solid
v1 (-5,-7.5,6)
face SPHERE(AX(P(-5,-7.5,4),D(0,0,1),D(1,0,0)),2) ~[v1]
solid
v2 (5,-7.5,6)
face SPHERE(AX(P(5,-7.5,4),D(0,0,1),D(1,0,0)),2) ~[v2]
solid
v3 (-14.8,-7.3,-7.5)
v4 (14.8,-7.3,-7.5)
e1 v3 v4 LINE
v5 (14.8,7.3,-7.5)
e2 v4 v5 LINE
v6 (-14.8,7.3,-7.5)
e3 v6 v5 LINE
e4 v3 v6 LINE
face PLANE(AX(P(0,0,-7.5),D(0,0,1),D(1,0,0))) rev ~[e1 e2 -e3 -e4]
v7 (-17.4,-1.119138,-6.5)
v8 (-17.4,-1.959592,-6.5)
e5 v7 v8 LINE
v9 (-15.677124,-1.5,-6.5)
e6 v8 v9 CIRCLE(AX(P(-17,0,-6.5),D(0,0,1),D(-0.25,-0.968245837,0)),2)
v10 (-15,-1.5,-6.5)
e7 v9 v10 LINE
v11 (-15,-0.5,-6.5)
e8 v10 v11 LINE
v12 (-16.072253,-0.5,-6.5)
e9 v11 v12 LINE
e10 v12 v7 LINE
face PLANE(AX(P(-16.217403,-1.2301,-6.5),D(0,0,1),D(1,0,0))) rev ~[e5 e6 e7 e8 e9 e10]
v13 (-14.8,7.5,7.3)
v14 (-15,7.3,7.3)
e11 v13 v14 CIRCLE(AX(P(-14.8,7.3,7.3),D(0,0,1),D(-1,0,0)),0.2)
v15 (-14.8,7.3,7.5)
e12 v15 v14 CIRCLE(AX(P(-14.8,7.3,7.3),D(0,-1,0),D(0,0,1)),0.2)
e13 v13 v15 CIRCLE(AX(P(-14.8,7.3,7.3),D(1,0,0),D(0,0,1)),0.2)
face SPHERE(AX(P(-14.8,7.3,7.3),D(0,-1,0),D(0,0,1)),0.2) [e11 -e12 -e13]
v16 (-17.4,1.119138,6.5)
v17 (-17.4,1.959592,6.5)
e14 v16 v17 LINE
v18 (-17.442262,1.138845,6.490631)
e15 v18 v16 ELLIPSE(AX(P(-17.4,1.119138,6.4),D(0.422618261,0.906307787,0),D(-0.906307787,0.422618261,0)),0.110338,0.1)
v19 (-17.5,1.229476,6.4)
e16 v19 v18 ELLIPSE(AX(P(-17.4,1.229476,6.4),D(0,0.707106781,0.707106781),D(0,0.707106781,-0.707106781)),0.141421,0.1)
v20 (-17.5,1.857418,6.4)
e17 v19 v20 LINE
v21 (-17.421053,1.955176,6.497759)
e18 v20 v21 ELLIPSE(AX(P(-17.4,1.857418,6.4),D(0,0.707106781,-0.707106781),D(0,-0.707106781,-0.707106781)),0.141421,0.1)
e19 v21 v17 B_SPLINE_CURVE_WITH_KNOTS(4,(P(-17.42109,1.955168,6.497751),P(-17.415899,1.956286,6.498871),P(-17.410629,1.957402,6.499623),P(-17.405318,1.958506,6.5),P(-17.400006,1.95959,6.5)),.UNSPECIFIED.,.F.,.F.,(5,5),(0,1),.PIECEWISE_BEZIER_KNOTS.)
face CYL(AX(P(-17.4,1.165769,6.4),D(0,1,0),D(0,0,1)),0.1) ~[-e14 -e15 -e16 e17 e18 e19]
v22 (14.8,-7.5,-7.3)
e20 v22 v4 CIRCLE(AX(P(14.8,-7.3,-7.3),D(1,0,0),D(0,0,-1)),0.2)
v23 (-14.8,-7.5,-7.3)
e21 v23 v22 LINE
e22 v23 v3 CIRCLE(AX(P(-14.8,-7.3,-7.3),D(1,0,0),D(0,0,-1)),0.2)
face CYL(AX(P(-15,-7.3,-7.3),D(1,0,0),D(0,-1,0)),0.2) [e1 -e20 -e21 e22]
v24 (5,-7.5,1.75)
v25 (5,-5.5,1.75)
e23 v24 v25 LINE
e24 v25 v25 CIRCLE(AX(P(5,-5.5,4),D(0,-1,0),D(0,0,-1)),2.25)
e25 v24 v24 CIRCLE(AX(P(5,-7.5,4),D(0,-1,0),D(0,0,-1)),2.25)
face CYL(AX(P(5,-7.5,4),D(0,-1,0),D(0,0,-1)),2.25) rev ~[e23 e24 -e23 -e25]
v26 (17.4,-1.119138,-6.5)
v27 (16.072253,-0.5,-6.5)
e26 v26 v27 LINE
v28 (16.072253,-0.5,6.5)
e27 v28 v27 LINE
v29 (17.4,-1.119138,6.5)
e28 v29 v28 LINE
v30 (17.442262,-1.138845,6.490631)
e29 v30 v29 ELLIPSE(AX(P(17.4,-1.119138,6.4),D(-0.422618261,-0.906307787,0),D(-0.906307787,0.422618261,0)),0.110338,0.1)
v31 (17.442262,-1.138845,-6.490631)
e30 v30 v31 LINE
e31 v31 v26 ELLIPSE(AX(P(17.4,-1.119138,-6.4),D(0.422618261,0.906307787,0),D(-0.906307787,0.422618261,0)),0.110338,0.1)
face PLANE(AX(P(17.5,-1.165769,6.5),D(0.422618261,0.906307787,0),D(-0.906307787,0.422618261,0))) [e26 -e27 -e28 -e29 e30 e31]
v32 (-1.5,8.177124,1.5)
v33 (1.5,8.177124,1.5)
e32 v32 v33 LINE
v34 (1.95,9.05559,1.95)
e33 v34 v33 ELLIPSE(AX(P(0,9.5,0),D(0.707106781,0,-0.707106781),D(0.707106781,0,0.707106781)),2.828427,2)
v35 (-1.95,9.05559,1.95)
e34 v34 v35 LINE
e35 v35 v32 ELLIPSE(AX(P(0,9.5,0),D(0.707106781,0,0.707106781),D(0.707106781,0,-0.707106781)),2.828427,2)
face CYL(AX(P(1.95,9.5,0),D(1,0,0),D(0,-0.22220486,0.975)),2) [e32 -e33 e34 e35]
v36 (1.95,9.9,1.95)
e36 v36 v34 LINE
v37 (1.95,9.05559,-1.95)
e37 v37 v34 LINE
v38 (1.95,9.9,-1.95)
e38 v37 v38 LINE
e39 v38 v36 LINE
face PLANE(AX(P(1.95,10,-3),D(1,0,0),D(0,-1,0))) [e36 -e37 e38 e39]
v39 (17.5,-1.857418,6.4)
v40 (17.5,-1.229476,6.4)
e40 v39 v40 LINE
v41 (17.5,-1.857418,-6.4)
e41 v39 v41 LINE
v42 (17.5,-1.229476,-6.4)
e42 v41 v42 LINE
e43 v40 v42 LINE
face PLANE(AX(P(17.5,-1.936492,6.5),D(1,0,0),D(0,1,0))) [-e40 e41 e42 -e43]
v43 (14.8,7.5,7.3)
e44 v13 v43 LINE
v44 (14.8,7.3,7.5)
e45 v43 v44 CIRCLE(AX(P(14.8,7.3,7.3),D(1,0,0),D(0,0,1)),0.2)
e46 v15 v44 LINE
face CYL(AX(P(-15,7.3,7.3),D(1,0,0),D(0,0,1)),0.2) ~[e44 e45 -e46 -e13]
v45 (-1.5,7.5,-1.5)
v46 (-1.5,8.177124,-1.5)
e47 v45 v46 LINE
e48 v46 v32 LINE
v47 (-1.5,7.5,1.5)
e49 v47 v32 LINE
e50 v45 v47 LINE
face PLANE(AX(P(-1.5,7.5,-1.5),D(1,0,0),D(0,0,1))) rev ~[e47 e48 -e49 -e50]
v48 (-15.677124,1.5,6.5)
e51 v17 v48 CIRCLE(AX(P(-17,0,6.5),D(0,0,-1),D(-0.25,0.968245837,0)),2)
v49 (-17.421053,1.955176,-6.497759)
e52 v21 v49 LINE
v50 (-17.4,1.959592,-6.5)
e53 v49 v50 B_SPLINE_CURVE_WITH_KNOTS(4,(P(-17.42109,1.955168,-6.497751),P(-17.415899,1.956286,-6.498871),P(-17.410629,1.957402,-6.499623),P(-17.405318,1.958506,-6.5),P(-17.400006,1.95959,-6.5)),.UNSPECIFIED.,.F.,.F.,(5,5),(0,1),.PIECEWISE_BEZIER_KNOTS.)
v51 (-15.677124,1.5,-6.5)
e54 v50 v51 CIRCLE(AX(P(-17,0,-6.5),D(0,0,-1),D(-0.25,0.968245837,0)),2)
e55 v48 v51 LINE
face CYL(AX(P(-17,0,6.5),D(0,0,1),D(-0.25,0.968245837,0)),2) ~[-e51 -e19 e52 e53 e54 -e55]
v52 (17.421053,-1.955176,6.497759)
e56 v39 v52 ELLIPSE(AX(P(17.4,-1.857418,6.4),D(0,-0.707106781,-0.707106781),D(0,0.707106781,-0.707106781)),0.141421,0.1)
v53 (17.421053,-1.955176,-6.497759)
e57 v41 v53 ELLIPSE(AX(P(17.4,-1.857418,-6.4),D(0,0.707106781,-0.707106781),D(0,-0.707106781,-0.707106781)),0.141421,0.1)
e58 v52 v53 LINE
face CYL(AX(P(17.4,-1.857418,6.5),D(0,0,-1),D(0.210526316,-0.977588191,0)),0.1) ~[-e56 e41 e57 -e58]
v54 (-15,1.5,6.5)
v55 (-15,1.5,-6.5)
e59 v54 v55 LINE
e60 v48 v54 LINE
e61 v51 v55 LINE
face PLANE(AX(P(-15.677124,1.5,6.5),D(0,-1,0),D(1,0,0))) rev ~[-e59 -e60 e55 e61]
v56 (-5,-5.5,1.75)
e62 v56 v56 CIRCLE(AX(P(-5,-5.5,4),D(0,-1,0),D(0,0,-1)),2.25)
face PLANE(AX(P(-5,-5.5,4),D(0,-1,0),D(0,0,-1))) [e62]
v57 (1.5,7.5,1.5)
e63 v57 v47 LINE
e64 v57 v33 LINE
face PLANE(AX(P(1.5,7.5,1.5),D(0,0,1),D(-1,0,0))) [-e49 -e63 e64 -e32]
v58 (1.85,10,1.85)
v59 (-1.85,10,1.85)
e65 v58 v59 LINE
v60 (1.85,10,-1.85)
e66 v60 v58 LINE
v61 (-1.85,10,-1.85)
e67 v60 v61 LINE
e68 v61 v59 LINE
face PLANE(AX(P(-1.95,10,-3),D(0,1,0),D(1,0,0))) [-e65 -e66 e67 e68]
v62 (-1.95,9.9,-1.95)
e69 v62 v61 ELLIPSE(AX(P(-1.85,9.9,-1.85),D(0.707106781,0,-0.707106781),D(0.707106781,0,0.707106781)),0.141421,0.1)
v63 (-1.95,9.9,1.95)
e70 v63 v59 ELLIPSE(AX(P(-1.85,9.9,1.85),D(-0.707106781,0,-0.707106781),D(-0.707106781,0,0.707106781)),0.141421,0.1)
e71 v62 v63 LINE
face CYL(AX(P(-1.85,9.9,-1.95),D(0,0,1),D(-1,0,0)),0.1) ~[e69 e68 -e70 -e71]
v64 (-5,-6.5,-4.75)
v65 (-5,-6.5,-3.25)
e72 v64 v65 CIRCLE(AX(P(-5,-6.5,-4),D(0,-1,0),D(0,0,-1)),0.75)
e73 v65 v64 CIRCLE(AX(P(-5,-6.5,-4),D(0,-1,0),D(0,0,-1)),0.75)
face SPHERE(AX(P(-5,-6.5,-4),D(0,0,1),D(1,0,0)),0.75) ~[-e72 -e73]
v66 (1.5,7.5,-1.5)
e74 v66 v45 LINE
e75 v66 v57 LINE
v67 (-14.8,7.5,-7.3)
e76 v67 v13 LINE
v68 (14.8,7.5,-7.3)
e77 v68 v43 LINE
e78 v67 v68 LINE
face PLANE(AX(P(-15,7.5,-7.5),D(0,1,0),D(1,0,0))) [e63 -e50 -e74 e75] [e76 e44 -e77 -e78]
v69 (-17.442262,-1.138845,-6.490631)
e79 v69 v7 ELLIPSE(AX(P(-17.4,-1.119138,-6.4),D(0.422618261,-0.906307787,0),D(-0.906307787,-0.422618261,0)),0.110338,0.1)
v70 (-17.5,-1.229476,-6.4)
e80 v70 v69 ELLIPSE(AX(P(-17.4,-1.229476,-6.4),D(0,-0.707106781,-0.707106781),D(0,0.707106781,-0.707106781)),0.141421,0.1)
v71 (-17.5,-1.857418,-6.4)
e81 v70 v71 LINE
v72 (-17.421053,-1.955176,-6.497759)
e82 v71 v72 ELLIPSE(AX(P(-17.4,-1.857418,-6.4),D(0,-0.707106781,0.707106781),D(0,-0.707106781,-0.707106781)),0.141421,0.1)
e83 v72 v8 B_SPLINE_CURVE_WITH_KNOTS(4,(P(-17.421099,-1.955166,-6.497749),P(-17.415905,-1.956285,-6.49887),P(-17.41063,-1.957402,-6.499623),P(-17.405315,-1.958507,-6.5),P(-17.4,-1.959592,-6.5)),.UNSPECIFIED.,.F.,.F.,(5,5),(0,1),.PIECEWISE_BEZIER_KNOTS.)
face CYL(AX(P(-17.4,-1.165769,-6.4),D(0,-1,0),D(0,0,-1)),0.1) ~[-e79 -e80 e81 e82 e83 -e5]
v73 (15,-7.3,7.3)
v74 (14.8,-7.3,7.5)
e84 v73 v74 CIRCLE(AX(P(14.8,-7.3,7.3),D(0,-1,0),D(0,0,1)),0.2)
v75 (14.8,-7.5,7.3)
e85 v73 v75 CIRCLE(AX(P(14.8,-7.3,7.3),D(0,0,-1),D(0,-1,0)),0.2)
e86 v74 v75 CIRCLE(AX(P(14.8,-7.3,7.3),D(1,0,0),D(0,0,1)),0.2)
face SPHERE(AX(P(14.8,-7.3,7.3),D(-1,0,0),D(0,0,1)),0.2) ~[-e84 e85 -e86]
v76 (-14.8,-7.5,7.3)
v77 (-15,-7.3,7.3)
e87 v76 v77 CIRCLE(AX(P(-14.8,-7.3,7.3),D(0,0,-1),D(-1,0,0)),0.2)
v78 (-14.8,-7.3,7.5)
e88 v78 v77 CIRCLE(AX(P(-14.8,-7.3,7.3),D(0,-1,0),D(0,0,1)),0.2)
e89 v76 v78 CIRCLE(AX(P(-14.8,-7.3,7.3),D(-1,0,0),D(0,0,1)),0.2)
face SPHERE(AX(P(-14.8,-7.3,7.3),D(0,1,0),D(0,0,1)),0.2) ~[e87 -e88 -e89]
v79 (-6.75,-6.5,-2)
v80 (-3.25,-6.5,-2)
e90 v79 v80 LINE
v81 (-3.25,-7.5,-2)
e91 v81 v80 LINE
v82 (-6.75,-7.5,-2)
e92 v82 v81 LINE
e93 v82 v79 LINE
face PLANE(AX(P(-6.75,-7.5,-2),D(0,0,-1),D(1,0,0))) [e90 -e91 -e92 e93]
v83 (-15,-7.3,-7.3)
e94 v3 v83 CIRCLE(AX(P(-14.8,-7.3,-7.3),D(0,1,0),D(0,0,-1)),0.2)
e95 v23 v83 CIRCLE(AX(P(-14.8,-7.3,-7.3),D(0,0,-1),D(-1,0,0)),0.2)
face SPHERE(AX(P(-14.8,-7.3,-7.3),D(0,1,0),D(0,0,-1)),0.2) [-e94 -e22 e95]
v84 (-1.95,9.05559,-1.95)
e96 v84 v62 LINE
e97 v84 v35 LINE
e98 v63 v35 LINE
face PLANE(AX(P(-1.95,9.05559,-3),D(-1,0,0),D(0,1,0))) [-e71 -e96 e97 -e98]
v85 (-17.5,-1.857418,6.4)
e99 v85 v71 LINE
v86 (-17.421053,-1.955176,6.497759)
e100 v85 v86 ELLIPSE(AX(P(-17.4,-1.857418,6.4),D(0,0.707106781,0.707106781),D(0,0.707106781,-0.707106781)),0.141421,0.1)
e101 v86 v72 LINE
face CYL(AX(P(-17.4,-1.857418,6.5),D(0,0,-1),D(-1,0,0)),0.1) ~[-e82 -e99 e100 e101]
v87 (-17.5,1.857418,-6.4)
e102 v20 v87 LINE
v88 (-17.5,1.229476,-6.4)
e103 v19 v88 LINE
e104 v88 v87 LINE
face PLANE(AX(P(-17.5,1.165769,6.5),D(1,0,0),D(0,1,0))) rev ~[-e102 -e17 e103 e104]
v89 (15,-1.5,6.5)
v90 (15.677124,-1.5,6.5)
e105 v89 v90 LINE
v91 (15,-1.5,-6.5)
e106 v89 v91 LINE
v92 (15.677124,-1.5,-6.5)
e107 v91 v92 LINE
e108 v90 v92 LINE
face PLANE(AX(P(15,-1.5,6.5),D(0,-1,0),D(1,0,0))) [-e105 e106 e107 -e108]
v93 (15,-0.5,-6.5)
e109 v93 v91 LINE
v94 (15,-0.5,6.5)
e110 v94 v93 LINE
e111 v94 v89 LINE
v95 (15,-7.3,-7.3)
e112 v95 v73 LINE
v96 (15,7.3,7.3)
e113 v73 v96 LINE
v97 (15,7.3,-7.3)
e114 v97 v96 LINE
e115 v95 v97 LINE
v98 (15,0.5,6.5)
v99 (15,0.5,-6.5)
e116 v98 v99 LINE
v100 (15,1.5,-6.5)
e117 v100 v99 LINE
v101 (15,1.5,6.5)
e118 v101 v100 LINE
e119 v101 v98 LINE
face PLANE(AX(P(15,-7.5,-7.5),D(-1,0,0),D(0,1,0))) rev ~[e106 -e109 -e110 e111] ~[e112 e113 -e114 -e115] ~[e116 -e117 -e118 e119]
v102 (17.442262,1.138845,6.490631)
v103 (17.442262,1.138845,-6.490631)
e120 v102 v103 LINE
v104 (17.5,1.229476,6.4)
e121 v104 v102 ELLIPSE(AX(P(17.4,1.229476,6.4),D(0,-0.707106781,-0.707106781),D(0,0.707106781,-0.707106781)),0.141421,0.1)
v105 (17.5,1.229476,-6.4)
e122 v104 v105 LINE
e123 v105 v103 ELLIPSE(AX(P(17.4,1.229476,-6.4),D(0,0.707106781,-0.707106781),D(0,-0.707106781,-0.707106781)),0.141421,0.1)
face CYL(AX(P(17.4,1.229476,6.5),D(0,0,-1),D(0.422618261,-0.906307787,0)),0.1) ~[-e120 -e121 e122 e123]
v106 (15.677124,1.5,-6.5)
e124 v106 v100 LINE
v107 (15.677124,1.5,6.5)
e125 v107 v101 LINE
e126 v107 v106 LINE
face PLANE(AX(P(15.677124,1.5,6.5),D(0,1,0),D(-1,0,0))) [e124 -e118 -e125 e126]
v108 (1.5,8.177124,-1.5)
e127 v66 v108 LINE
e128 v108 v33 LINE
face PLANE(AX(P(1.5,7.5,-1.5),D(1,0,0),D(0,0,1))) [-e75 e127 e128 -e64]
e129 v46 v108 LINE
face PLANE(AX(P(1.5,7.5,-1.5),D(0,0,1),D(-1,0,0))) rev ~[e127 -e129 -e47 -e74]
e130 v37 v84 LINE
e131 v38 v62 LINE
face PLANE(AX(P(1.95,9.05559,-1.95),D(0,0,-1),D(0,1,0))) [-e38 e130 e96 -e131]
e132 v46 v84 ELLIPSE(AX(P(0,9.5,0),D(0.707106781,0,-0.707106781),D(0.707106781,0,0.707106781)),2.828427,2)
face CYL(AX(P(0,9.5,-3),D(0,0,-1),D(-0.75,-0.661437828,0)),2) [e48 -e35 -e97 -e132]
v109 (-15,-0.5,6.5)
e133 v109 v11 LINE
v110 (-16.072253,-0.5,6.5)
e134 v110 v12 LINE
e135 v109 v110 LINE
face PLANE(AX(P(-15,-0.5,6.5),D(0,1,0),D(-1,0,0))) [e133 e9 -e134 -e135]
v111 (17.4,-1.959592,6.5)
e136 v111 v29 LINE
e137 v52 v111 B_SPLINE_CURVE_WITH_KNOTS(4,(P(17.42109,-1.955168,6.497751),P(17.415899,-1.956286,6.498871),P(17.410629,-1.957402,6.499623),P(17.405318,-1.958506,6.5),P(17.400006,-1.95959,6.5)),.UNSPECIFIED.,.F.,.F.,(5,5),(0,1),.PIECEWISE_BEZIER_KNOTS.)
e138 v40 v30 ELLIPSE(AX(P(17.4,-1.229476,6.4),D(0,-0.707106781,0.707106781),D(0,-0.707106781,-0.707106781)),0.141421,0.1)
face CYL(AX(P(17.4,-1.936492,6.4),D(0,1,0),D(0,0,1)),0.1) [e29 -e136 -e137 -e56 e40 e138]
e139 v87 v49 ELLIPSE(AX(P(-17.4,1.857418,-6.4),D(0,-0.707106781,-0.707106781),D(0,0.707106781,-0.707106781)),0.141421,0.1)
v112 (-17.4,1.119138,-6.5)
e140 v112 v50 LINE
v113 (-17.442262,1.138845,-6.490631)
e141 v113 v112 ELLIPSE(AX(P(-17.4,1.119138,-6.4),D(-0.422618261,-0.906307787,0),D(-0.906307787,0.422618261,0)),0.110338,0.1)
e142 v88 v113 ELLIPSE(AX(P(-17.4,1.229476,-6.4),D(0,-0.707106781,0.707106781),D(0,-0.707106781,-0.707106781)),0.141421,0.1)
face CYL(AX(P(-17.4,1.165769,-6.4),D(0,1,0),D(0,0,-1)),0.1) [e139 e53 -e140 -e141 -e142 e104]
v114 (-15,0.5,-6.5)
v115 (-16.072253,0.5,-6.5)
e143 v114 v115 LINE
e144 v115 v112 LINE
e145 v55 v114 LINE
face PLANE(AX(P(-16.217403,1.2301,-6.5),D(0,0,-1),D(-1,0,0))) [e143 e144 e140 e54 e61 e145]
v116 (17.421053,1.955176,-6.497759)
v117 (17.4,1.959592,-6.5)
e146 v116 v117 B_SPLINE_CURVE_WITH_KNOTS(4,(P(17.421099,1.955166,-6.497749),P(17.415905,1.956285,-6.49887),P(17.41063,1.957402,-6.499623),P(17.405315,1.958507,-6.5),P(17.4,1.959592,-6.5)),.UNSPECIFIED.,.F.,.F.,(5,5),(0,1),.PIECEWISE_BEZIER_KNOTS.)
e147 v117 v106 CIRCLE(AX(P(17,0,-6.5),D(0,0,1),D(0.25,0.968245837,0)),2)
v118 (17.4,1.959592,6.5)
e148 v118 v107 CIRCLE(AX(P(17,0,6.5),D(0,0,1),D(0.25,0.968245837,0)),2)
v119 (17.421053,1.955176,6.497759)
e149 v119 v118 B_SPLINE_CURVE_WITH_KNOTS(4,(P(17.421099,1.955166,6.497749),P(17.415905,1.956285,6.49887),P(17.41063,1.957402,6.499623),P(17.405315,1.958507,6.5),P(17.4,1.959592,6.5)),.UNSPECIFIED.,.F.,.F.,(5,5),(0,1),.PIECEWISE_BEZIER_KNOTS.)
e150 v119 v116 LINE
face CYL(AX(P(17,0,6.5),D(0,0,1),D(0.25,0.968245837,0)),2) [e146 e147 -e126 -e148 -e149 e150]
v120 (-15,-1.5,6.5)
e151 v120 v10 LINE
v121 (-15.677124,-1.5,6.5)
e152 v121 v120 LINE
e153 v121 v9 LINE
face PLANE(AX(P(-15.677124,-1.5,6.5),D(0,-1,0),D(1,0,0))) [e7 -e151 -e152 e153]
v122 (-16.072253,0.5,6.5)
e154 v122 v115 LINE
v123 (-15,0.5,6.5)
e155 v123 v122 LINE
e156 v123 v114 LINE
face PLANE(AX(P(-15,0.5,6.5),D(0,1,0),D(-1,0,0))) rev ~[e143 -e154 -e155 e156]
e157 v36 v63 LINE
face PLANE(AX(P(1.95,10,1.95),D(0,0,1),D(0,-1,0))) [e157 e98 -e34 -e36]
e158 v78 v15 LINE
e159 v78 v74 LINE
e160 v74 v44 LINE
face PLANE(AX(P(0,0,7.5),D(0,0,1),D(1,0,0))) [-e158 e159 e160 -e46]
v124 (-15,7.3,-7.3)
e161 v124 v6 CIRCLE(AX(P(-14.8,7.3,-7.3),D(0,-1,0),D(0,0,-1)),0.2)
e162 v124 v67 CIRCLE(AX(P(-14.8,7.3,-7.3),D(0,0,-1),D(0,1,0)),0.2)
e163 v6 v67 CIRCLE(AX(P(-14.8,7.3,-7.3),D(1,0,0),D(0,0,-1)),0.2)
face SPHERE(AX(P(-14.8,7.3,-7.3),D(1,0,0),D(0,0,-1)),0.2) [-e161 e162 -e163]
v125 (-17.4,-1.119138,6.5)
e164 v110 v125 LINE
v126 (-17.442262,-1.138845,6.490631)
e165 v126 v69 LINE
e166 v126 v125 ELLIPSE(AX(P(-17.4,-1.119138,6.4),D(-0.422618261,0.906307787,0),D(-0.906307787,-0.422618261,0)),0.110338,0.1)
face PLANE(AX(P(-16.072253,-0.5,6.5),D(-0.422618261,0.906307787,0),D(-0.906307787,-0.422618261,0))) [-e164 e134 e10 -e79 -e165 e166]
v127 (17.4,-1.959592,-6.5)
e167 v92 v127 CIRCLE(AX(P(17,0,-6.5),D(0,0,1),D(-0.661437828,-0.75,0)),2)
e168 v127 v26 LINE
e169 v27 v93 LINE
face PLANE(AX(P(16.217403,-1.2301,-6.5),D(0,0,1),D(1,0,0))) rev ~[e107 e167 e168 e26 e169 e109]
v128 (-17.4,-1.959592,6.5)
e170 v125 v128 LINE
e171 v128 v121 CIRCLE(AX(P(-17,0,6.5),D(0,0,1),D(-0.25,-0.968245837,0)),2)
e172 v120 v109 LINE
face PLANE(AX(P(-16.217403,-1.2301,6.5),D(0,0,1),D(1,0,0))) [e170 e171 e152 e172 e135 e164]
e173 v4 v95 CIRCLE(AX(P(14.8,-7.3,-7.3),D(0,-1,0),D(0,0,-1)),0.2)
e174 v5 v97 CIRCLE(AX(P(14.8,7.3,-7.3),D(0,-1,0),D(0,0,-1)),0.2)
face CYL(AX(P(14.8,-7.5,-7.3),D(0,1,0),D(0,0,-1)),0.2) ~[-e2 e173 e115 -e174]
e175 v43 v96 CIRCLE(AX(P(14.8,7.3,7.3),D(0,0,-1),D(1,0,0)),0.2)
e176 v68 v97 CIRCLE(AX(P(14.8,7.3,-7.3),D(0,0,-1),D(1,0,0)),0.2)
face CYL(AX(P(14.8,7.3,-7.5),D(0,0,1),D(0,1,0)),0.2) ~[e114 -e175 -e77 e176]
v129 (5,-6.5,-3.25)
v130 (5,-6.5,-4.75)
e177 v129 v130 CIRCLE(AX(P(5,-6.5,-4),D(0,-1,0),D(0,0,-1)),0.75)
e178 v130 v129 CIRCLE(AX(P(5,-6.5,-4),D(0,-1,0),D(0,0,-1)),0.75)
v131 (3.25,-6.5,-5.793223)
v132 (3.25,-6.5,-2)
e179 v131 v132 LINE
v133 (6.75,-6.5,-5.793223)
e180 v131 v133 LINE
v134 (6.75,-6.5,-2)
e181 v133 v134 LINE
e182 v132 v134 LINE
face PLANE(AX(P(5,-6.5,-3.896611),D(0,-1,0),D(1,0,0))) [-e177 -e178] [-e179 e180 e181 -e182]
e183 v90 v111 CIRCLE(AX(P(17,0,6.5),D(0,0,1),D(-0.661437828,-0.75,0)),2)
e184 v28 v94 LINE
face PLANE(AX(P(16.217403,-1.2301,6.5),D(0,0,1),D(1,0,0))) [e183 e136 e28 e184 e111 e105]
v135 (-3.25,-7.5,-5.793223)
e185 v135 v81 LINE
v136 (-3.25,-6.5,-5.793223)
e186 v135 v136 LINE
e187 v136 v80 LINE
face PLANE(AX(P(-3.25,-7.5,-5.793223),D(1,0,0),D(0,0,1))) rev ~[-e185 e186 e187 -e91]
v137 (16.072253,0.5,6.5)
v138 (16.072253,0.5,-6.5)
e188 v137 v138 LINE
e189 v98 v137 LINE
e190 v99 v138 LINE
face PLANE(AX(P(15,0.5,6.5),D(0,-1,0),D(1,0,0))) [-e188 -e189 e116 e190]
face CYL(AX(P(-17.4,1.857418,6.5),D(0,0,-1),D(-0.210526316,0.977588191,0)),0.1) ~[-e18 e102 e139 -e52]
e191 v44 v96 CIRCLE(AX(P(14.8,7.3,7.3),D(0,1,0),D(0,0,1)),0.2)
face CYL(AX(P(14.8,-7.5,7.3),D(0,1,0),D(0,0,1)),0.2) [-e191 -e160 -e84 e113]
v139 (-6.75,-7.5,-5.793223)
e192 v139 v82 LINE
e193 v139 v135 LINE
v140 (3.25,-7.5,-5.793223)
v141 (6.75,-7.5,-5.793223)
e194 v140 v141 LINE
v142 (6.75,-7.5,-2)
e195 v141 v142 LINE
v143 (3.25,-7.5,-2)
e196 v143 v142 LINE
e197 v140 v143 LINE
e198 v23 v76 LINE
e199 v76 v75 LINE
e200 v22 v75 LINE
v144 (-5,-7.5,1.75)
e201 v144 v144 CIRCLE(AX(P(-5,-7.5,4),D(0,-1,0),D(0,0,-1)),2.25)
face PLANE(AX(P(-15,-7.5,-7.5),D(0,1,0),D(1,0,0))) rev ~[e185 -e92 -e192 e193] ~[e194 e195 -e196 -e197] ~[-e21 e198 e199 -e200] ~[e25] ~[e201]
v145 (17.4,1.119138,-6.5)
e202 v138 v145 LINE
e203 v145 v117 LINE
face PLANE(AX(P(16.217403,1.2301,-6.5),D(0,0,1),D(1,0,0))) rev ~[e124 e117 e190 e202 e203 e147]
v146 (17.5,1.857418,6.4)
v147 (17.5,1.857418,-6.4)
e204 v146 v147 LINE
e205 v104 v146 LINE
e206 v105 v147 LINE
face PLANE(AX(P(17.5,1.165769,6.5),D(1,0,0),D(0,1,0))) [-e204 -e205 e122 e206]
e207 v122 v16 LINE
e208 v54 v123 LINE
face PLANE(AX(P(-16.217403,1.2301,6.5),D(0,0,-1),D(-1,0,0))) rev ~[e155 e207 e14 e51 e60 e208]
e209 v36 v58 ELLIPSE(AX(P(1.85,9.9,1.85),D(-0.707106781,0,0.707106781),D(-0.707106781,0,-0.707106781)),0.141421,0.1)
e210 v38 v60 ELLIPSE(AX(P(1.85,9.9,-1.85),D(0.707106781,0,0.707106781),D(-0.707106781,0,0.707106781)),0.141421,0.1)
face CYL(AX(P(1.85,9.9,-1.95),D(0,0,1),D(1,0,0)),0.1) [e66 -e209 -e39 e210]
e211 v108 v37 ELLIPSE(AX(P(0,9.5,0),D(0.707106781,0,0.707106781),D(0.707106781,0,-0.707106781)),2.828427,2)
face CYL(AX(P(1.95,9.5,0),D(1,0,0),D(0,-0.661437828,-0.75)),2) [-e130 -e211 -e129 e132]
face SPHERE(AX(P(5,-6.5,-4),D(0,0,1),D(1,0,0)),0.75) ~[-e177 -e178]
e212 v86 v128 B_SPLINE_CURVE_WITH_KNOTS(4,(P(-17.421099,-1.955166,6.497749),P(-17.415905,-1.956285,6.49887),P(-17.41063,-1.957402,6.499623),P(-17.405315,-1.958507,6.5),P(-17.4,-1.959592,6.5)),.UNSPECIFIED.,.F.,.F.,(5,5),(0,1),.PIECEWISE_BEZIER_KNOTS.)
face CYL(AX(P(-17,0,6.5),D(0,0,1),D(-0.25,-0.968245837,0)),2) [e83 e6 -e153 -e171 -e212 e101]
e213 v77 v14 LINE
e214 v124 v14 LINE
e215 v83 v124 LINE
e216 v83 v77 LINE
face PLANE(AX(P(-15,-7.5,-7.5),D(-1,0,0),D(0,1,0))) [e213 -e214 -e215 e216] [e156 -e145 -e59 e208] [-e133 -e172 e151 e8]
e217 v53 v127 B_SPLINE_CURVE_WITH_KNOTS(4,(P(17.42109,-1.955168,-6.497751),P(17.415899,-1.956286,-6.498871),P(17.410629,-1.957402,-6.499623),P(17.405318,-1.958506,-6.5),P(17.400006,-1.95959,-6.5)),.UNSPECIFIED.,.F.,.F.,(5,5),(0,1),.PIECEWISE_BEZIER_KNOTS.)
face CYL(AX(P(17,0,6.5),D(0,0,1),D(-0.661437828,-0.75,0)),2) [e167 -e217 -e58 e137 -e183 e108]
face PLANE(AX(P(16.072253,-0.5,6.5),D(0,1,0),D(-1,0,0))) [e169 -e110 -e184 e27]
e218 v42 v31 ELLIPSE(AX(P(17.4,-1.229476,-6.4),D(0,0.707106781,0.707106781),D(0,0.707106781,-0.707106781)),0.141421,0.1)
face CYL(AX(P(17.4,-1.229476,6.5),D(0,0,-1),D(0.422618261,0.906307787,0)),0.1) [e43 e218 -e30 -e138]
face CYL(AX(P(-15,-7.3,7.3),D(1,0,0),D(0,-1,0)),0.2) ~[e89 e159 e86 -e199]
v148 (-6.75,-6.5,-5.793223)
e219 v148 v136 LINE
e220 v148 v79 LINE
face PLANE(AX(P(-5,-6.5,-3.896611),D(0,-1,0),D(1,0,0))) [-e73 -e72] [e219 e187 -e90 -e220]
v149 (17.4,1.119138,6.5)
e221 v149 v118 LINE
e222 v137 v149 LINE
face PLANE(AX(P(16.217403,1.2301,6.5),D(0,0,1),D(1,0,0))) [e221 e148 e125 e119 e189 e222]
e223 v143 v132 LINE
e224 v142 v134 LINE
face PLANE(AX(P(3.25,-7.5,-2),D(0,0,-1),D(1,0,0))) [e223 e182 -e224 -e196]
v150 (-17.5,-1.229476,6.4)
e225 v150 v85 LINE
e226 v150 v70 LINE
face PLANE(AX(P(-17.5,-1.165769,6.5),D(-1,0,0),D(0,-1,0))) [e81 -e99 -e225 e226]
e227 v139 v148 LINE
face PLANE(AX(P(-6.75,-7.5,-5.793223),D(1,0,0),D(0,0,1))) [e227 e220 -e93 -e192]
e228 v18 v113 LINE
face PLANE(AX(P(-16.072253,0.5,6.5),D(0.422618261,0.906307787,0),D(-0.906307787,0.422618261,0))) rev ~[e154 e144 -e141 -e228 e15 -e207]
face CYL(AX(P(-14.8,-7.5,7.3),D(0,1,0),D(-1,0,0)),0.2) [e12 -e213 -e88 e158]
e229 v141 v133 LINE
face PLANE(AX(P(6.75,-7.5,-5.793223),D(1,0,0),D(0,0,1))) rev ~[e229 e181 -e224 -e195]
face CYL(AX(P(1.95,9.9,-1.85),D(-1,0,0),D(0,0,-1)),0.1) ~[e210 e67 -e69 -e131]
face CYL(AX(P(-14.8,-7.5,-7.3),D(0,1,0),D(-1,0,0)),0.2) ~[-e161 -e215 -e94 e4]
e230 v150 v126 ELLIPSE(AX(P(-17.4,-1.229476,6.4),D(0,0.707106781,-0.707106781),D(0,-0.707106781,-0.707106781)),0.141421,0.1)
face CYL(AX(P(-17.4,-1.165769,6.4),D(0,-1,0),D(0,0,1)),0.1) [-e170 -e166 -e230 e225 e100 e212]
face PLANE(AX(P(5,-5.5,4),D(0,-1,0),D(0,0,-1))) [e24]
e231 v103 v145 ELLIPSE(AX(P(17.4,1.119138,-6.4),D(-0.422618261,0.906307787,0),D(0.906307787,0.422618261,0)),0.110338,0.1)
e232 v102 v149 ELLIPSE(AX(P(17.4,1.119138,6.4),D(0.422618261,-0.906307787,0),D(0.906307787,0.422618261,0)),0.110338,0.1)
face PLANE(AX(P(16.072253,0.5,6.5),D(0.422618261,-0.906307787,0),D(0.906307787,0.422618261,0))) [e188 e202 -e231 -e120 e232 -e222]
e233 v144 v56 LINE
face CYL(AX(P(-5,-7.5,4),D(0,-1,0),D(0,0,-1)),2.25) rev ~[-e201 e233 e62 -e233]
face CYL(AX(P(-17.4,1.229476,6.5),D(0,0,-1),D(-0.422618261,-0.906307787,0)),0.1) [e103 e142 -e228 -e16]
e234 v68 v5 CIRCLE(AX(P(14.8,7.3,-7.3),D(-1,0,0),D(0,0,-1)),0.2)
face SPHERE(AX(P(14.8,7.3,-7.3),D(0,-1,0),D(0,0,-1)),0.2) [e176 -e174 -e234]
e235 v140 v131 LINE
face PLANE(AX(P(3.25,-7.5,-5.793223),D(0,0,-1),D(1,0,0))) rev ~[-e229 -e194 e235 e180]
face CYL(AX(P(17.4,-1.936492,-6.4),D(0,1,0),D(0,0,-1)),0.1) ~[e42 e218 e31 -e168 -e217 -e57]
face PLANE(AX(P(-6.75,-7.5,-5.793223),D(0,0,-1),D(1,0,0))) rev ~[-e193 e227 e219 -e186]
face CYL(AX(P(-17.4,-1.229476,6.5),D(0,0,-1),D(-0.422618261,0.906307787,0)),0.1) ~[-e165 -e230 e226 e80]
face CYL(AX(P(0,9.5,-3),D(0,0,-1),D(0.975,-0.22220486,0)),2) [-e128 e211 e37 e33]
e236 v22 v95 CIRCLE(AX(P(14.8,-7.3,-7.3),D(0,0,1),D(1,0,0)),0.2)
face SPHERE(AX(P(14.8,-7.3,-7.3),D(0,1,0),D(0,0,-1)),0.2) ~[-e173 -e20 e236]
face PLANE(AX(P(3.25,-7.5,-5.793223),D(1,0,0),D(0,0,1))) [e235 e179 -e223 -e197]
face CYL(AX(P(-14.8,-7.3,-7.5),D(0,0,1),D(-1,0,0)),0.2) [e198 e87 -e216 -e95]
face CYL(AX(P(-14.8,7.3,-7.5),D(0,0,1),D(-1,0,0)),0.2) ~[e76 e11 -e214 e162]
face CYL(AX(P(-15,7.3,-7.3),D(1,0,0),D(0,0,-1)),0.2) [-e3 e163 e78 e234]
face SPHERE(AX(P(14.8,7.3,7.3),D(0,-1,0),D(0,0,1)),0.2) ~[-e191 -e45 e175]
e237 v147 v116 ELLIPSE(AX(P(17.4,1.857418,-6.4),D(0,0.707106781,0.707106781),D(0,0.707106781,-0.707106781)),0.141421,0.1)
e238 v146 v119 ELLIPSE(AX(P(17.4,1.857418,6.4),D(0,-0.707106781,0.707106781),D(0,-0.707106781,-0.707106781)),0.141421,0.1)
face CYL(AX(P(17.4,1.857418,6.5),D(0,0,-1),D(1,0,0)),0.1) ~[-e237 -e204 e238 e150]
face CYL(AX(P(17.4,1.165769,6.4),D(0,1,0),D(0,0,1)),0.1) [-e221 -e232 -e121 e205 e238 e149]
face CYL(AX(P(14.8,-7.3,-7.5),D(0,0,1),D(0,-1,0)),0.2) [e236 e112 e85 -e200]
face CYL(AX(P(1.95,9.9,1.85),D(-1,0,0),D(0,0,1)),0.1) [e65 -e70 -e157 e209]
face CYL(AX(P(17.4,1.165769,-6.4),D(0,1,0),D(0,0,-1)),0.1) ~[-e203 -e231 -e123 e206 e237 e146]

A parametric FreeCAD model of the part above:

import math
import FreeCAD as App
import Part
import Sketcher
from FreeCAD import Vector
Q = App.Units.Quantity


def edges_at(feature, points):
    """Names of the edges that pass closest to the given points."""
    edges = feature.Shape.Edges
    near = lambda p: min(range(len(edges)), key=lambda i: edges[i].distToShape(Part.Vertex(*p))[0])
    return sorted({f"Edge{near(p) + 1}" for p in points})


def add_polygon(sketch, points):
    """Adds a closed chain of lines whose ends are joined by coincident constraints."""
    first, n = sketch.GeometryCount, len(points)
    for a, b in zip(points, points[1:] + points[:1]):
        sketch.addGeometry(Part.LineSegment(App.Vector(*a, 0), App.Vector(*b, 0)), False)
    for i in range(n):
        sketch.addConstraint(Sketcher.Constraint("Coincident", first + i, 2, first + (i + 1) % n, 1))

doc = App.newDocument("Part")
body = doc.addObject("PartDesign::Body", "Body")

# Sketch on XY plane
sketch1 = body.newObject("Sketcher::SketchObject", "Sketch")
sketch1.AttachmentSupport = (doc.getObject("XY_Plane"), [""])
sketch1.MapMode = "FlatFace"
add_polygon(sketch1, [(-15, 8), (-15, -8), (15, -8), (15, 8)])  # lines 0-3
sketch1.addConstraint([
    Sketcher.Constraint("Vertical", 0),
    Sketcher.Constraint("Horizontal", 1),
    Sketcher.Constraint("Vertical", 2),
    Sketcher.Constraint("Horizontal", 3),
    Sketcher.Constraint("Symmetric", 0, 2, 2, 2, -1, 1),
    Sketcher.Constraint("DistanceX", 1, 1, 1, 2, 30.0),
    Sketcher.Constraint("DistanceY", 0, 2, 0, 1, 15.0),
])
pad1 = body.newObject("PartDesign::Pad", "Pad")
pad1.Profile = sketch1
pad1.Type = "TwoLengths"
pad1.Length = 7.5
pad1.Length2 = 7.5

# Sketch on XY plane
sketch2 = body.newObject("Sketcher::SketchObject", "Sketch001")
sketch2.AttachmentSupport = (doc.getObject("XY_Plane"), [""])
sketch2.MapMode = "FlatFace"
sketch2.AttachmentOffset = App.Placement(Vector(0, 0, 6.5), App.Rotation())
sketch2.addGeometry([
    Part.LineSegment(Vector(-15, 1.5, 0), Vector(-15.7, 1.5, 0)),  # 0
    Part.ArcOfCircle(Part.Circle(Vector(-17, 0, 0), Vector(0, 0, 1), 2), math.radians(49), math.radians(104)),  # 1
    Part.LineSegment(Vector(-17.5, 1.9, 0), Vector(-17.5, 1.2, 0)),  # 2
    Part.LineSegment(Vector(-17.5, 1.2, 0), Vector(-16.1, 0.5, 0)),  # 3
    Part.LineSegment(Vector(-16.1, 0.5, 0), Vector(-15, 0.5, 0)),  # 4
    Part.LineSegment(Vector(-15, 0.5, 0), Vector(-15, 1.5, 0)),  # 5
    Part.LineSegment(Vector(-15.7, -1.5, 0), Vector(-15, -1.5, 0)),  # 6
    Part.LineSegment(Vector(-15, -1.5, 0), Vector(-15, -0.5, 0)),  # 7
    Part.LineSegment(Vector(-15, -0.5, 0), Vector(-16.1, -0.5, 0)),  # 8
    Part.LineSegment(Vector(-16.1, -0.5, 0), Vector(-17.5, -1.2, 0)),  # 9
    Part.LineSegment(Vector(-17.5, -1.2, 0), Vector(-17.5, -1.9, 0)),  # 10
    Part.ArcOfCircle(Part.Circle(Vector(-17, 0, 0), Vector(0, 0, 1), 2), math.radians(-104), math.radians(-49)),  # 11
    Part.LineSegment(Vector(15, -0.5, 0), Vector(15, -1.5, 0)),  # 12
    Part.LineSegment(Vector(15, -1.5, 0), Vector(15.7, -1.5, 0)),  # 13
    Part.ArcOfCircle(Part.Circle(Vector(17, 0, 0), Vector(0, 0, 1), 2), math.radians(-131), math.radians(-76)),  # 14
    Part.LineSegment(Vector(17.5, -1.9, 0), Vector(17.5, -1.2, 0)),  # 15
    Part.LineSegment(Vector(17.5, -1.2, 0), Vector(16.1, -0.5, 0)),  # 16
    Part.LineSegment(Vector(16.1, -0.5, 0), Vector(15, -0.5, 0)),  # 17
    Part.LineSegment(Vector(15, 0.5, 0), Vector(16.1, 0.5, 0)),  # 18
    Part.LineSegment(Vector(16.1, 0.5, 0), Vector(17.5, 1.2, 0)),  # 19
    Part.LineSegment(Vector(17.5, 1.2, 0), Vector(17.5, 1.9, 0)),  # 20
    Part.ArcOfCircle(Part.Circle(Vector(17, 0, 0), Vector(0, 0, 1), 2), math.radians(76), math.radians(131)),  # 21
    Part.LineSegment(Vector(15.7, 1.5, 0), Vector(15, 1.5, 0)),  # 22
    Part.LineSegment(Vector(15, 1.5, 0), Vector(15, 0.5, 0)),  # 23
], False)
sketch2.addConstraint([
    Sketcher.Constraint("Coincident", 0, 2, 1, 1),
    Sketcher.Constraint("Coincident", 1, 2, 2, 1),
    Sketcher.Constraint("Coincident", 2, 2, 3, 1),
    Sketcher.Constraint("Coincident", 3, 2, 4, 1),
    Sketcher.Constraint("Coincident", 4, 2, 5, 1),
    Sketcher.Constraint("Coincident", 5, 2, 0, 1),
    Sketcher.Constraint("Coincident", 6, 2, 7, 1),
    Sketcher.Constraint("Coincident", 7, 2, 8, 1),
    Sketcher.Constraint("Coincident", 8, 2, 9, 1),
    Sketcher.Constraint("Coincident", 9, 2, 10, 1),
    Sketcher.Constraint("Coincident", 10, 2, 11, 1),
    Sketcher.Constraint("Coincident", 11, 2, 6, 1),
    Sketcher.Constraint("Coincident", 12, 2, 13, 1),
    Sketcher.Constraint("Coincident", 13, 2, 14, 1),
    Sketcher.Constraint("Coincident", 14, 2, 15, 1),
    Sketcher.Constraint("Coincident", 15, 2, 16, 1),
    Sketcher.Constraint("Coincident", 16, 2, 17, 1),
    Sketcher.Constraint("Coincident", 17, 2, 12, 1),
    Sketcher.Constraint("Coincident", 18, 2, 19, 1),
    Sketcher.Constraint("Coincident", 19, 2, 20, 1),
    Sketcher.Constraint("Coincident", 20, 2, 21, 1),
    Sketcher.Constraint("Coincident", 21, 2, 22, 1),
    Sketcher.Constraint("Coincident", 22, 2, 23, 1),
    Sketcher.Constraint("Coincident", 23, 2, 18, 1),
    Sketcher.Constraint("Horizontal", 0),
    Sketcher.Constraint("Vertical", 2),
    Sketcher.Constraint("Horizontal", 4),
    Sketcher.Constraint("Vertical", 5),
    Sketcher.Constraint("Horizontal", 6),
    Sketcher.Constraint("Vertical", 7),
    Sketcher.Constraint("Horizontal", 8),
    Sketcher.Constraint("Vertical", 10),
    Sketcher.Constraint("Vertical", 12),
    Sketcher.Constraint("Horizontal", 13),
    Sketcher.Constraint("Vertical", 15),
    Sketcher.Constraint("Horizontal", 17),
    Sketcher.Constraint("Horizontal", 18),
    Sketcher.Constraint("Vertical", 20),
    Sketcher.Constraint("Horizontal", 22),
    Sketcher.Constraint("Vertical", 23),
    Sketcher.Constraint("Coincident", 11, 3, 1, 3),
    Sketcher.Constraint("Coincident", 21, 3, 14, 3),
    Sketcher.Constraint("Equal", 1, 11),
    Sketcher.Constraint("Equal", 11, 14),
    Sketcher.Constraint("Equal", 14, 21),
    Sketcher.Constraint("Symmetric", 1, 3, 14, 3, -1, 1),
    Sketcher.Constraint("Symmetric", 5, 2, 12, 2, -1, 1),
    Sketcher.Constraint("Symmetric", 2, 2, 15, 2, -1, 1),
    Sketcher.Constraint("Symmetric", 3, 2, 16, 2, -1, 1),
    Sketcher.Constraint("Symmetric", 8, 2, 18, 2, -1, 1),
    Sketcher.Constraint("Symmetric", 9, 2, 19, 2, -1, 1),
    Sketcher.Constraint("Symmetric", 6, 2, 22, 2, -1, 1),
    Sketcher.Constraint("Symmetric", 6, 2, 12, 2, -2),
    Sketcher.Constraint("Symmetric", 10, 2, 14, 2, -2),
    Sketcher.Constraint("Symmetric", 8, 2, 16, 2, -2),
    Sketcher.Constraint("Horizontal", 9, 2, 15, 2),
    Sketcher.Constraint("Radius", 1, 2.0),
    Sketcher.Constraint("DistanceY", 5, 1, 5, 2, 1.0),
    Sketcher.Constraint("Angle", 3, Q("-25 deg")),
    Sketcher.Constraint("DistanceX", 1, 3, -1, 1, 17.0),
    Sketcher.Constraint("DistanceX", 4, 2, -1, 1, 15.0),
    Sketcher.Constraint("DistanceY", 6, 2, 4, 2, 2.0),
    Sketcher.Constraint("DistanceX", 1, 2, -1, 1, 17.5),
    Sketcher.Constraint("DistanceX", 4, 1, 4, 2, 1.072253),
])
pad2 = body.newObject("PartDesign::Pad", "Pad001")
pad2.Profile = sketch2
pad2.Length = 13
pad2.Reversed = True

# Sketch on XZ plane
sketch3 = body.newObject("Sketcher::SketchObject", "Sketch002")
sketch3.AttachmentSupport = (doc.getObject("XZ_Plane"), [""])
sketch3.MapMode = "FlatFace"
sketch3.AttachmentOffset = App.Placement(Vector(0, 0, -7.5), App.Rotation())
add_polygon(sketch3, [(1.5, 1.5), (1.5, -1.5), (-1.5, -1.5), (-1.5, 1.5)])  # lines 0-3
sketch3.addConstraint([
    Sketcher.Constraint("Vertical", 0),
    Sketcher.Constraint("Horizontal", 1),
    Sketcher.Constraint("Vertical", 2),
    Sketcher.Constraint("Horizontal", 3),
    Sketcher.Constraint("Symmetric", 0, 2, 2, 2, -1, 1),
    Sketcher.Constraint("Equal", 3, 0),
    Sketcher.Constraint("DistanceX", 1, 2, 1, 1, 3.0),
])
pad3 = body.newObject("PartDesign::Pad", "Pad002")
pad3.Profile = sketch3
pad3.Length = 1
pad3.Reversed = True

# Sketch on XY plane
sketch4 = body.newObject("Sketcher::SketchObject", "Sketch003")
sketch4.AttachmentSupport = (doc.getObject("XY_Plane"), [""])
sketch4.MapMode = "FlatFace"
sketch4.addGeometry([
    Part.LineSegment(Vector(1.9, 10, 0), Vector(-1.9, 10, 0)),  # 0
    Part.LineSegment(Vector(-1.9, 10, 0), Vector(-1.9, 9.1, 0)),  # 1
    Part.ArcOfCircle(Part.Circle(Vector(0, 9.5, 0), Vector(0, 0, 1), 2), math.radians(-167), math.radians(-139)),  # 2
    Part.LineSegment(Vector(-1.5, 8.2, 0), Vector(1.5, 8.2, 0)),  # 3
    Part.ArcOfCircle(Part.Circle(Vector(0, 9.5, 0), Vector(0, 0, 1), 2), math.radians(-41), math.radians(-13)),  # 4
    Part.LineSegment(Vector(1.9, 9.1, 0), Vector(1.9, 10, 0)),  # 5
], False)
sketch4.addConstraint([
    Sketcher.Constraint("Coincident", 0, 2, 1, 1),
    Sketcher.Constraint("Coincident", 1, 2, 2, 1),
    Sketcher.Constraint("Coincident", 2, 2, 3, 1),
    Sketcher.Constraint("Coincident", 3, 2, 4, 1),
    Sketcher.Constraint("Coincident", 4, 2, 5, 1),
    Sketcher.Constraint("Coincident", 5, 2, 0, 1),
    Sketcher.Constraint("Horizontal", 0),
    Sketcher.Constraint("Vertical", 1),
    Sketcher.Constraint("Horizontal", 3),
    Sketcher.Constraint("Vertical", 5),
    Sketcher.Constraint("Coincident", 4, 3, 2, 3),
    Sketcher.Constraint("Equal", 2, 4),
    Sketcher.Constraint("Symmetric", 1, 2, 4, 2, -2),
    Sketcher.Constraint("Radius", 2, 2.0),
    Sketcher.Constraint("DistanceX", 3, 1, 3, 2, 3.0),
    Sketcher.Constraint("DistanceX", 0, 2, 0, 1, 3.9),
    Sketcher.Constraint("DistanceY", -1, 1, 0, 2, 10.0),
    Sketcher.Constraint("DistanceY", -1, 1, 2, 3, 9.5),
])
pad4 = body.newObject("PartDesign::Pad", "Pad003")
pad4.Profile = sketch4
pad4.Type = "TwoLengths"
pad4.Length = 2
pad4.Length2 = 3

# Sketch on YZ plane
sketch5 = body.newObject("Sketcher::SketchObject", "Sketch004")
sketch5.AttachmentSupport = (doc.getObject("YZ_Plane"), [""])
sketch5.MapMode = "FlatFace"
sketch5.AttachmentOffset = App.Placement(Vector(0, 0, 1.95), App.Rotation())
sketch5.addGeometry([
    Part.LineSegment(Vector(9.06, 1.95, 0), Vector(10, 1.95, 0)),  # 0
    Part.LineSegment(Vector(10, 1.95, 0), Vector(10, 2, 0)),  # 1
    Part.LineSegment(Vector(10, 2, 0), Vector(8.18, 2, 0)),  # 2
    Part.LineSegment(Vector(8.18, 2, 0), Vector(8.18, 1.5, 0)),  # 3
    Part.ArcOfCircle(Part.Circle(Vector(9.5, 0, 0), Vector(0, 0, 1), 2), math.radians(103), math.radians(131)),  # 4
], False)
sketch5.addConstraint([
    Sketcher.Constraint("Coincident", 0, 2, 1, 1),
    Sketcher.Constraint("Coincident", 1, 2, 2, 1),
    Sketcher.Constraint("Coincident", 2, 2, 3, 1),
    Sketcher.Constraint("Coincident", 3, 2, 4, 2),
    Sketcher.Constraint("Coincident", 4, 1, 0, 1),
    Sketcher.Constraint("Horizontal", 0),
    Sketcher.Constraint("Vertical", 1),
    Sketcher.Constraint("Horizontal", 2),
    Sketcher.Constraint("Vertical", 3),
    Sketcher.Constraint("PointOnObject", 4, 3, -1),
    Sketcher.Constraint("Radius", 4, 2.0),
    Sketcher.Constraint("DistanceY", 3, 2, 3, 1, 0.5),
    Sketcher.Constraint("DistanceX", -1, 1, 0, 2, 10.0),
    Sketcher.Constraint("DistanceY", -1, 1, 1, 2, 2.0),
    Sketcher.Constraint("DistanceY", 1, 1, 1, 2, 0.05),
    Sketcher.Constraint("DistanceX", -1, 1, 4, 3, 9.5),
])
pocket1 = body.newObject("PartDesign::Pocket", "Pocket")
pocket1.Profile = sketch5
pocket1.Length = 3.9

# Sketch on YZ plane
sketch6 = body.newObject("Sketcher::SketchObject", "Sketch005")
sketch6.AttachmentSupport = (doc.getObject("YZ_Plane"), [""])
sketch6.MapMode = "FlatFace"
sketch6.AttachmentOffset = App.Placement(Vector(0, 0, 1.95), App.Rotation())
sketch6.addGeometry([
    Part.LineSegment(Vector(8.2, -3, 0), Vector(10, -3, 0)),  # 0
    Part.LineSegment(Vector(10, -3, 0), Vector(10, -1.9, 0)),  # 1
    Part.LineSegment(Vector(10, -1.9, 0), Vector(9.1, -1.9, 0)),  # 2
    Part.ArcOfCircle(Part.Circle(Vector(9.5, 0, 0), Vector(0, 0, 1), 2), math.radians(-131), math.radians(-103)),  # 3
    Part.LineSegment(Vector(8.2, -1.5, 0), Vector(8.2, -3, 0)),  # 4
], False)
sketch6.addConstraint([
    Sketcher.Constraint("Coincident", 0, 2, 1, 1),
    Sketcher.Constraint("Coincident", 1, 2, 2, 1),
    Sketcher.Constraint("Coincident", 2, 2, 3, 2),
    Sketcher.Constraint("Coincident", 3, 1, 4, 1),
    Sketcher.Constraint("Coincident", 4, 2, 0, 1),
    Sketcher.Constraint("Horizontal", 0),
    Sketcher.Constraint("Vertical", 1),
    Sketcher.Constraint("Horizontal", 2),
    Sketcher.Constraint("Vertical", 4),
    Sketcher.Constraint("PointOnObject", 3, 3, -1),
    Sketcher.Constraint("Radius", 3, 2.0),
    Sketcher.Constraint("DistanceY", 4, 2, 4, 1, 1.5),
    Sketcher.Constraint("DistanceX", -1, 1, 0, 2, 10.0),
    Sketcher.Constraint("DistanceY", 0, 2, -1, 1, 3.0),
    Sketcher.Constraint("DistanceY", 1, 1, 1, 2, 1.05),
    Sketcher.Constraint("DistanceX", -1, 1, 3, 3, 9.5),
])
pocket2 = body.newObject("PartDesign::Pocket", "Pocket001")
pocket2.Profile = sketch6
pocket2.Length = 3.9

# Sketch on XZ plane
sketch7 = body.newObject("Sketcher::SketchObject", "Sketch006")
sketch7.AttachmentSupport = (doc.getObject("XZ_Plane"), [""])
sketch7.MapMode = "FlatFace"
sketch7.AttachmentOffset = App.Placement(Vector(0, 0, 7.5), App.Rotation())
sketch7.addGeometry([
    Part.Circle(Vector(-5, 4, 0), Vector(0, 0, 1), 2.2),
    Part.Circle(Vector(5, 4, 0), Vector(0, 0, 1), 2.2),
], False)
sketch7.addConstraint([
    Sketcher.Constraint("Equal", 0, 1),
    Sketcher.Constraint("Symmetric", 0, 3, 1, 3, -2),
    Sketcher.Constraint("Diameter", 0, 4.5),
    Sketcher.Constraint("DistanceX", 0, 3, -1, 1, 5.0),
    Sketcher.Constraint("DistanceY", -1, 1, 0, 3, 4.0),
])
pocket3 = body.newObject("PartDesign::Pocket", "Pocket002")
pocket3.Profile = sketch7
pocket3.Length = 2

# Sketch on XZ plane
sketch8 = body.newObject("Sketcher::SketchObject", "Sketch007")
sketch8.AttachmentSupport = (doc.getObject("XZ_Plane"), [""])
sketch8.MapMode = "FlatFace"
sketch8.AttachmentOffset = App.Placement(Vector(0, 0, 7.5), App.Rotation())
add_polygon(sketch8, [(-6.8, -2), (-6.8, -5.8), (-3.2, -5.8), (-3.2, -2)])  # lines 0-3
add_polygon(sketch8, [(3.2, -2), (3.2, -5.8), (6.8, -5.8), (6.8, -2)])  # lines 4-7
sketch8.addConstraint([
    Sketcher.Constraint("Vertical", 0),
    Sketcher.Constraint("Horizontal", 1),
    Sketcher.Constraint("Vertical", 2),
    Sketcher.Constraint("Horizontal", 3),
    Sketcher.Constraint("Vertical", 4),
    Sketcher.Constraint("Horizontal", 5),
    Sketcher.Constraint("Vertical", 6),
    Sketcher.Constraint("Horizontal", 7),
    Sketcher.Constraint("Symmetric", 1, 2, 4, 2, -2),
    Sketcher.Constraint("Symmetric", 3, 2, 6, 2, -2),
    Sketcher.Constraint("DistanceX", 1, 1, 1, 2, 3.5),
    Sketcher.Constraint("DistanceY", 2, 2, -1, 1, 2.0),
    Sketcher.Constraint("DistanceX", 0, 2, 4, 2, 10.0),
    Sketcher.Constraint("DistanceY", 0, 2, 0, 1, 3.793223),
])
pocket4 = body.newObject("PartDesign::Pocket", "Pocket003")
pocket4.Profile = sketch8
pocket4.Length = 1

# Sketch on XZ plane
sketch9 = body.newObject("Sketcher::SketchObject", "Sketch008")
sketch9.AttachmentSupport = (doc.getObject("XZ_Plane"), [""])
sketch9.MapMode = "FlatFace"
sketch9.AttachmentOffset = App.Placement(Vector(0, 0, 6.5), App.Rotation())
sketch9.addGeometry([
    Part.LineSegment(Vector(-5, -3.2, 0), Vector(-5, -4.8, 0)),
    Part.ArcOfCircle(Part.Circle(Vector(-5, -4, 0), Vector(0, 0, 1), 0.8), math.radians(-90), math.radians(90)),
], False)
sketch9.addGeometry(Part.LineSegment(Vector(-5, -3.2, 0), Vector(-5, -4.8, 0)), True)  # axis
sketch9.addConstraint([
    Sketcher.Constraint("Coincident", 0, 1, 1, 2),
    Sketcher.Constraint("Coincident", 1, 1, 0, 2),
    Sketcher.Constraint("Vertical", 0),
    Sketcher.Constraint("Vertical", 2),
    Sketcher.Constraint("Coincident", 2, 1, 0, 1),
    Sketcher.Constraint("Vertical", 1, 3, 0, 1),
    Sketcher.Constraint("Equal", 0, 2),
    Sketcher.Constraint("Radius", 1, 0.75),
    Sketcher.Constraint("DistanceX", 1, 3, -1, 1, 5.0),
    Sketcher.Constraint("DistanceY", 1, 3, -1, 1, 4.0),
])
revolution = body.newObject("PartDesign::Revolution", "Revolution")
revolution.Profile = sketch9
revolution.ReferenceAxis = (sketch9, ["Axis0"])
revolution.Angle = 360

# Sketch on XZ plane
sketch10 = body.newObject("Sketcher::SketchObject", "Sketch009")
sketch10.AttachmentSupport = (doc.getObject("XZ_Plane"), [""])
sketch10.MapMode = "FlatFace"
sketch10.AttachmentOffset = App.Placement(Vector(0, 0, 6.5), App.Rotation())
sketch10.addGeometry([
    Part.LineSegment(Vector(5, -3.2, 0), Vector(5, -4.8, 0)),
    Part.ArcOfCircle(Part.Circle(Vector(5, -4, 0), Vector(0, 0, 1), 0.8), math.radians(-90), math.radians(90)),
], False)
sketch10.addGeometry(Part.LineSegment(Vector(5, -3.2, 0), Vector(5, -4.8, 0)), True)  # axis
sketch10.addConstraint([
    Sketcher.Constraint("Coincident", 0, 1, 1, 2),
    Sketcher.Constraint("Coincident", 1, 1, 0, 2),
    Sketcher.Constraint("Vertical", 0),
    Sketcher.Constraint("Vertical", 2),
    Sketcher.Constraint("Coincident", 2, 1, 0, 1),
    Sketcher.Constraint("Vertical", 1, 3, 0, 1),
    Sketcher.Constraint("Equal", 0, 2),
    Sketcher.Constraint("Radius", 1, 0.75),
    Sketcher.Constraint("DistanceX", -1, 1, 1, 3, 5.0),
    Sketcher.Constraint("DistanceY", 1, 3, -1, 1, 4.0),
])
revolution2 = body.newObject("PartDesign::Revolution", "Revolution001")
revolution2.Profile = sketch10
revolution2.ReferenceAxis = (sketch10, ["Axis0"])
revolution2.Angle = 360
doc.recompute()

fillet = body.newObject("PartDesign::Fillet", "Fillet")
fillet.Base = (revolution2, edges_at(revolution2, [
    (0, 10, 1.95),
    (1.95, 10, 0),
    (-1.95, 10, 0),
    (0, 10, -1.95),
    (-17.5, -1.551, -6.5),
    (-17.5, -1.936, 0),
    (-17.5, -1.166, 0),
    (-17.5, -1.551, 6.5),
    (-17.5, 1.551, -6.5),
    (-17.5, 1.166, 0),
    (-17.5, 1.936, 0),
    (-17.5, 1.551, 6.5),
    (17.5, -1.936, 0),
    (17.5, -1.551, -6.5),
    (17.5, -1.166, 0),
    (17.5, -1.551, 6.5),
    (17.5, 1.551, -6.5),
    (17.5, 1.936, 0),
    (17.5, 1.166, 0),
    (17.5, 1.551, 6.5),
]))
fillet.Radius = 0.1
doc.recompute()

fillet2 = body.newObject("PartDesign::Fillet", "Fillet001")
fillet2.Base = (fillet, edges_at(fillet, [
    (15, 0, -7.5),
    (-15, 0, 7.5),
    (0, -7.5, 7.5),
    (0, 7.5, -7.5),
    (15, 0, 7.5),
    (0, 7.5, 7.5),
    (-15, 0, -7.5),
    (0, -7.5, -7.5),
    (-15, 7.5, 0),
    (15, 7.5, 0),
    (15, -7.5, 0),
    (-15, -7.5, 0),
]))
fillet2.Radius = 0.2
body2 = doc.addObject("PartDesign::Body", "Body001")

# Sketch on XZ plane
sketch11 = body2.newObject("Sketcher::SketchObject", "Sketch010")
sketch11.AttachmentSupport = (doc.getObject("XZ_Plane001"), [""])
sketch11.MapMode = "FlatFace"
sketch11.AttachmentOffset = App.Placement(Vector(0, 0, 7.5), App.Rotation())
sketch11.addGeometry([
    Part.LineSegment(Vector(-5, 6, 0), Vector(-5, 2, 0)),
    Part.ArcOfCircle(Part.Circle(Vector(-5, 4, 0), Vector(0, 0, 1), 2), math.radians(-90), math.radians(90)),
], False)
sketch11.addGeometry(Part.LineSegment(Vector(-5, 6, 0), Vector(-5, 2, 0)), True)  # axis
sketch11.addConstraint([
    Sketcher.Constraint("Coincident", 0, 1, 1, 2),
    Sketcher.Constraint("Coincident", 1, 1, 0, 2),
    Sketcher.Constraint("Vertical", 0),
    Sketcher.Constraint("Vertical", 2),
    Sketcher.Constraint("Coincident", 2, 1, 0, 1),
    Sketcher.Constraint("Vertical", 1, 3, 0, 1),
    Sketcher.Constraint("Equal", 0, 2),
    Sketcher.Constraint("Radius", 1, 2.0),
    Sketcher.Constraint("DistanceX", 1, 3, -1, 1, 5.0),
    Sketcher.Constraint("DistanceY", -1, 1, 1, 3, 4.0),
])
revolution3 = body2.newObject("PartDesign::Revolution", "Revolution002")
revolution3.Profile = sketch11
revolution3.ReferenceAxis = (sketch11, ["Axis0"])
revolution3.Angle = 360
body3 = doc.addObject("PartDesign::Body", "Body002")

# Sketch on XZ plane
sketch12 = body3.newObject("Sketcher::SketchObject", "Sketch011")
sketch12.AttachmentSupport = (doc.getObject("XZ_Plane002"), [""])
sketch12.MapMode = "FlatFace"
sketch12.AttachmentOffset = App.Placement(Vector(0, 0, 7.5), App.Rotation())
sketch12.addGeometry([
    Part.LineSegment(Vector(5, 6, 0), Vector(5, 2, 0)),
    Part.ArcOfCircle(Part.Circle(Vector(5, 4, 0), Vector(0, 0, 1), 2), math.radians(-90), math.radians(90)),
], False)
sketch12.addGeometry(Part.LineSegment(Vector(5, 6, 0), Vector(5, 2, 0)), True)  # axis
sketch12.addConstraint([
    Sketcher.Constraint("Coincident", 0, 1, 1, 2),
    Sketcher.Constraint("Coincident", 1, 1, 0, 2),
    Sketcher.Constraint("Vertical", 0),
    Sketcher.Constraint("Vertical", 2),
    Sketcher.Constraint("Coincident", 2, 1, 0, 1),
    Sketcher.Constraint("Vertical", 1, 3, 0, 1),
    Sketcher.Constraint("Equal", 0, 2),
    Sketcher.Constraint("Radius", 1, 2.0),
    Sketcher.Constraint("DistanceX", -1, 1, 1, 3, 5.0),
    Sketcher.Constraint("DistanceY", -1, 1, 1, 3, 4.0),
])
revolution4 = body3.newObject("PartDesign::Revolution", "Revolution003")
revolution4.Profile = sketch12
revolution4.ReferenceAxis = (sketch12, ["Axis0"])
revolution4.Angle = 360

doc.recompute()
